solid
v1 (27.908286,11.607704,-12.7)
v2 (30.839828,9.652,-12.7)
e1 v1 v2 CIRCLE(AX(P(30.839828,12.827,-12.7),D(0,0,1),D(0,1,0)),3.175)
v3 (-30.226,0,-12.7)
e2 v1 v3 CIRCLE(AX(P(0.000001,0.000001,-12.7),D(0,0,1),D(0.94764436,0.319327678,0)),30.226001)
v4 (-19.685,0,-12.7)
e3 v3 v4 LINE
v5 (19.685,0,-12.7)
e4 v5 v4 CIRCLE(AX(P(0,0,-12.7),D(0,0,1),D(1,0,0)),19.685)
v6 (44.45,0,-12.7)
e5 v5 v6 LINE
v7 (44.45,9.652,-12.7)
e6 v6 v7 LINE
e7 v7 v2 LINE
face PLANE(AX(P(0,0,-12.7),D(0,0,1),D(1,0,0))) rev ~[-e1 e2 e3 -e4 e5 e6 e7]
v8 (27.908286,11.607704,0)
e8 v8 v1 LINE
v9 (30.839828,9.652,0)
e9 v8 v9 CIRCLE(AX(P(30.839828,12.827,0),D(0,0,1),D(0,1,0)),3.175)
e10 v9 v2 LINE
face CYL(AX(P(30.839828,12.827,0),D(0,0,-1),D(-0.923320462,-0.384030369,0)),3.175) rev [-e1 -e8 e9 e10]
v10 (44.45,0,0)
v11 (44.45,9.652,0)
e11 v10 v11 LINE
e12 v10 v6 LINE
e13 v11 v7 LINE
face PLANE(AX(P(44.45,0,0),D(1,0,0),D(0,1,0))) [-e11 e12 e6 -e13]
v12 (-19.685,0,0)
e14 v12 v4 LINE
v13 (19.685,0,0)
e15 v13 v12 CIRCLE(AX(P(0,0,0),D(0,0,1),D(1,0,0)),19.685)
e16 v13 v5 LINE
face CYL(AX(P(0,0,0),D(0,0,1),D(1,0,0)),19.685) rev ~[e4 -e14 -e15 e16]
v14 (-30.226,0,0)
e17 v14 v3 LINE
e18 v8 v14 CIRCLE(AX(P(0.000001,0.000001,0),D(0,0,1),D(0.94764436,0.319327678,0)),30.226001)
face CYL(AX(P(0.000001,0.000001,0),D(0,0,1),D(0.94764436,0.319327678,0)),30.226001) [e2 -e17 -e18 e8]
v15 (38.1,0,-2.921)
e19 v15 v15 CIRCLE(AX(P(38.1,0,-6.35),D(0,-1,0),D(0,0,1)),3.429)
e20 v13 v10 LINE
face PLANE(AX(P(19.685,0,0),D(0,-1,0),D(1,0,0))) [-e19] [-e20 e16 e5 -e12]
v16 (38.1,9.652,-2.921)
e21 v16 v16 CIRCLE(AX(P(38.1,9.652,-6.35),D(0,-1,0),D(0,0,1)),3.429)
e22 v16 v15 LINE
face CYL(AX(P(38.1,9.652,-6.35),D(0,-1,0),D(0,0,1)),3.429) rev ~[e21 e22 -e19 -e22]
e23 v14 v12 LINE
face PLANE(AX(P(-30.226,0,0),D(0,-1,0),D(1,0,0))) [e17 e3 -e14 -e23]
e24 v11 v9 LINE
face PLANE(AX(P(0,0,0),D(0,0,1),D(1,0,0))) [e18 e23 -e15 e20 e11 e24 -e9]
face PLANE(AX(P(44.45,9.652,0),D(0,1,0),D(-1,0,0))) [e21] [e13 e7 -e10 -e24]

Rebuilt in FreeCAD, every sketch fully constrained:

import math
import FreeCAD as App
import Part
import Sketcher

V = App.Vector
Q = App.Units.Quantity


def edges_at(feature, points):
    """Names of the edges that pass closest to the given points."""
    edges = feature.Shape.Edges
    near = lambda p: min(range(len(edges)), key=lambda i: edges[i].distToShape(Part.Vertex(*p))[0])
    return sorted({f"Edge{near(p) + 1}" for p in points})

doc = App.newDocument("Part")
body = doc.addObject("PartDesign::Body", "Body")

# Sketch on XY plane
sketch1 = body.newObject("Sketcher::SketchObject", "Sketch")
sketch1.AttachmentSupport = (doc.getObject("XY_Plane"), [""])
sketch1.MapMode = "FlatFace"
sketch1.addGeometry(Part.ArcOfCircle(Part.Circle(V(0, 0, 0), V(0, 0, 1), 20), math.radians(0), math.radians(180)), False)
sketch1.addGeometry(Part.LineSegment(V(20, 0, 0), V(44, 0, 0)), False)
sketch1.addGeometry(Part.LineSegment(V(44, 0, 0), V(44, 10, 0)), False)
sketch1.addGeometry(Part.LineSegment(V(44, 10, 0), V(29, 10, 0)), False)
sketch1.addGeometry(Part.ArcOfCircle(Part.Circle(V(0, 0, 0), V(0, 0, 1), 30), math.radians(19), math.radians(180)), False)
sketch1.addGeometry(Part.LineSegment(V(-30, 0, 0), V(-20, 0, 0)), False)
sketch1.addConstraint(Sketcher.Constraint("Coincident", 0, 1, 1, 1))
sketch1.addConstraint(Sketcher.Constraint("Coincident", 1, 2, 2, 1))
sketch1.addConstraint(Sketcher.Constraint("Coincident", 2, 2, 3, 1))
sketch1.addConstraint(Sketcher.Constraint("Coincident", 3, 2, 4, 1))
sketch1.addConstraint(Sketcher.Constraint("Coincident", 4, 2, 5, 1))
sketch1.addConstraint(Sketcher.Constraint("Coincident", 5, 2, 0, 2))
sketch1.addConstraint(Sketcher.Constraint("Horizontal", 1))
sketch1.addConstraint(Sketcher.Constraint("Vertical", 2))
sketch1.addConstraint(Sketcher.Constraint("Horizontal", 3))
sketch1.addConstraint(Sketcher.Constraint("Horizontal", 5))
sketch1.addConstraint(Sketcher.Constraint("Coincident", 0, 3, -1, 1))
sketch1.addConstraint(Sketcher.Constraint("Coincident", 4, 3, -1, 1))
sketch1.addConstraint(Sketcher.Constraint("PointOnObject", 0, 1, -1))
sketch1.addConstraint(Sketcher.Constraint("PointOnObject", 4, 2, -1))
sketch1.addConstraint(Sketcher.Constraint("Radius", 4, Q("1.19 in")))
sketch1.addConstraint(Sketcher.Constraint("Radius", 0, Q("0.775 in")))
sketch1.addConstraint(Sketcher.Constraint("DistanceY", 2, 1, 2, 2, Q("0.38 in")))
sketch1.addConstraint(Sketcher.Constraint("DistanceX", -1, 1, 1, 2, Q("1.75 in")))
pad1 = body.newObject("PartDesign::Pad", "Pad")
pad1.Profile = sketch1
pad1.Length = Q("0.5 in")
pad1.Reversed = True
doc.recompute()

fillet = body.newObject("PartDesign::Fillet", "Fillet")
fillet.Base = (pad1, edges_at(pad1, [(28.643, 9.652, -6.35)]))
fillet.Radius = Q("0.125 in")

# Sketch on XZ plane
sketch2 = body.newObject("Sketcher::SketchObject", "Sketch001")
sketch2.AttachmentSupport = (doc.getObject("XZ_Plane"), [""])
sketch2.MapMode = "FlatFace"
sketch2.AttachmentOffset = App.Placement(V(0, 0, -0.38 * 25.4), App.Rotation())
sketch2.addGeometry(Part.Circle(V(38.1, -6.3, 0), V(0, 0, 1), 3.4), False)
sketch2.addConstraint(Sketcher.Constraint("Diameter", 0, Q("0.27 in")))
sketch2.addConstraint(Sketcher.Constraint("DistanceX", -1, 1, 0, 3, Q("1.5 in")))
sketch2.addConstraint(Sketcher.Constraint("DistanceY", 0, 3, -1, 1, Q("0.25 in")))
doc.recompute()
hole = body.newObject("PartDesign::Hole", "Hole")
hole.Profile = sketch2
hole.ThreadType = "None"
hole.Diameter = Q("0.27 in")
hole.DepthType = "ThroughAll"
hole.Reversed = True

doc.recompute()
